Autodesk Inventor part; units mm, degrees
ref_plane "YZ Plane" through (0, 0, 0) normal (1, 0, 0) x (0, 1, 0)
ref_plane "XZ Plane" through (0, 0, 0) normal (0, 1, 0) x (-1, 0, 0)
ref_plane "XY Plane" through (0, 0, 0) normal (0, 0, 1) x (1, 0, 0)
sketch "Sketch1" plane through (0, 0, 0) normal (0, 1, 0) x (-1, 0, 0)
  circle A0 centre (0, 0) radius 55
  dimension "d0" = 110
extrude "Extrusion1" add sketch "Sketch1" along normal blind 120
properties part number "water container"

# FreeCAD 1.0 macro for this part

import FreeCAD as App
import Part
import Sketcher

V = App.Vector
Q = App.Units.Quantity

doc = App.newDocument("Part")
body = doc.addObject("PartDesign::Body", "Body")

# Sketch on XZ plane
sketch1 = body.newObject("Sketcher::SketchObject", "Sketch")
sketch1.AttachmentSupport = (doc.getObject("XZ_Plane"), [""])
sketch1.MapMode = "FlatFace"
sketch1.addGeometry(Part.Circle(V(0, 0, 0), V(0, 0, 1), 55), False)
sketch1.addConstraint(Sketcher.Constraint("Coincident", 0, 3, -1, 1))
sketch1.addConstraint(Sketcher.Constraint("Diameter", 0, Q("110 mm")))
pad1 = body.newObject("PartDesign::Pad", "Pad")
pad1.Profile = sketch1
pad1.Length = 120
pad1.Reversed = True

doc.recompute()
